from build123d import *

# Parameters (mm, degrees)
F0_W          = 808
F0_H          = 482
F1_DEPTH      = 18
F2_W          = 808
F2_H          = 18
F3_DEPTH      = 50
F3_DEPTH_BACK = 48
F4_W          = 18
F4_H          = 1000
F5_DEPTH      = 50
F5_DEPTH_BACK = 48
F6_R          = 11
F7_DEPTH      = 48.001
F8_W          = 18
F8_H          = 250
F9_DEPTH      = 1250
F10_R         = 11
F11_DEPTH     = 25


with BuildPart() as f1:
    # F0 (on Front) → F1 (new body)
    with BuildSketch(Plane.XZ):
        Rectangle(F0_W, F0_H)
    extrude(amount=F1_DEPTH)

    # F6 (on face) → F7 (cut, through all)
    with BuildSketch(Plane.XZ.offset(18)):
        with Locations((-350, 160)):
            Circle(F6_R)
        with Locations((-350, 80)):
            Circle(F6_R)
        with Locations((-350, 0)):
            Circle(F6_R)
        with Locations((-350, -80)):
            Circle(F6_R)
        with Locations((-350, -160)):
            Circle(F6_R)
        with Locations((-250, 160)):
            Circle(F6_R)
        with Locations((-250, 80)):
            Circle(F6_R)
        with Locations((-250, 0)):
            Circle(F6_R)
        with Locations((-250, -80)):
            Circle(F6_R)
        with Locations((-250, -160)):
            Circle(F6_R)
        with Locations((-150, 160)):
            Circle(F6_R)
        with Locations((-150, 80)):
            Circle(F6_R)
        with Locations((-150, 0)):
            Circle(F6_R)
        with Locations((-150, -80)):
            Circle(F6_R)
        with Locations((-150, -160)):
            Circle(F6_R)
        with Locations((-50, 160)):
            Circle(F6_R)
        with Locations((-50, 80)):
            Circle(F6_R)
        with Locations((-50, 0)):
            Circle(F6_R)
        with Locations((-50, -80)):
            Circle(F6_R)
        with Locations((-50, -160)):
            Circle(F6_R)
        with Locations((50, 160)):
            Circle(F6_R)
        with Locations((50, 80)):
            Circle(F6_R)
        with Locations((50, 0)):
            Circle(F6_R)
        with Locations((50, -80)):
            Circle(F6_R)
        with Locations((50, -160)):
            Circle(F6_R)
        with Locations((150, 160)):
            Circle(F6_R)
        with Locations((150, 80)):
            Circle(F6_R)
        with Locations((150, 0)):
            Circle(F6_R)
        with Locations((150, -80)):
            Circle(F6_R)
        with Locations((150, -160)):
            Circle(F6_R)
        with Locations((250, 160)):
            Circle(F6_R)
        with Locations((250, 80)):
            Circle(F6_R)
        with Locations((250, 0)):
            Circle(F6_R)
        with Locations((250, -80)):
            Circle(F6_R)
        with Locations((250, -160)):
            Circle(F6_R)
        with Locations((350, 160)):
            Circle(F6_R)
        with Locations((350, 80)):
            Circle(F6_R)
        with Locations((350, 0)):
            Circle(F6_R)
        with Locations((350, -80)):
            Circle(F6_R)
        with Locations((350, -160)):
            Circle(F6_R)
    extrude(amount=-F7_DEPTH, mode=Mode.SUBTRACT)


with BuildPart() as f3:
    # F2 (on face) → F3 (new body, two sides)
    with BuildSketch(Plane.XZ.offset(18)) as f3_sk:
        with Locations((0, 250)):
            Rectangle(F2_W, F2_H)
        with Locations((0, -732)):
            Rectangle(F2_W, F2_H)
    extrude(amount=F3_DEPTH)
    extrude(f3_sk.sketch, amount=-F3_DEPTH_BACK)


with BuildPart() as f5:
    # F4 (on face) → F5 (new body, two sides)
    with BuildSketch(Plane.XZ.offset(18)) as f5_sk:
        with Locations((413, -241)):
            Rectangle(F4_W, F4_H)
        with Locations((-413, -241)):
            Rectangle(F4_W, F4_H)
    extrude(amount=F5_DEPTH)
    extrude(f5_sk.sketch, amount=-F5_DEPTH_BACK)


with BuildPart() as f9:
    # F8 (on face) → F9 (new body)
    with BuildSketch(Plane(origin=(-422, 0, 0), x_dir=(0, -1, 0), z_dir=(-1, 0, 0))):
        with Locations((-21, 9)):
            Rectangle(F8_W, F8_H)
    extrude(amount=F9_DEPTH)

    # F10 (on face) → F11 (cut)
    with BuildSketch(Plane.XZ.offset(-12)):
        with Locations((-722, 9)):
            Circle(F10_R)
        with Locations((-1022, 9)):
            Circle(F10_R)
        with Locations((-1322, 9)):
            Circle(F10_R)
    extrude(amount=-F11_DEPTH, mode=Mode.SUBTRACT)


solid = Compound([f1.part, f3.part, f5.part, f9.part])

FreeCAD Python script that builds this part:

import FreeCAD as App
import Part
import Sketcher

V = App.Vector

doc = App.newDocument("Part")
params = doc.addObject("Spreadsheet::Sheet", "Params")
for row, (alias, value) in enumerate([
    ("sketch1_width", "808 mm"),
    ("sketch1_height", "482 mm"),
    ("pad1_length", "18 mm"),
    ("sketch2_diameter", "22 mm"),
    ("sketch3_width", "808 mm"),
    ("sketch3_height", "18 mm"),
    ("pad2_length", "50 mm"),
    ("pad2_length2", "48 mm"),
    ("sketch4_width", "18 mm"),
    ("sketch4_height", "1000 mm"),
    ("pad3_length", "50 mm"),
    ("pad3_length2", "48 mm"),
    ("sketch5_width", "18 mm"),
    ("sketch5_height", "250 mm"),
    ("pad4_length", "1250 mm"),
    ("sketch6_diameter", "22 mm"),
    ("pocket2_length", "25 mm"),
], start=1):
    params.set(f"A{row}", alias)
    params.set(f"B{row}", "=" + value)
    params.setAlias(f"B{row}", alias)

body = doc.addObject("PartDesign::Body", "Body")

sketch1 = body.newObject("Sketcher::SketchObject", "Sketch")
sketch1.AttachmentSupport = (doc.getObject("XZ_Plane"), [""])
sketch1.MapMode = "FlatFace"
sketch1.addGeometry([
    Part.LineSegment(V(-404, 241, 0), V(-404, -241, 0)),
    Part.LineSegment(V(-404, -241, 0), V(404, -241, 0)),
    Part.LineSegment(V(404, -241, 0), V(404, 241, 0)),
    Part.LineSegment(V(404, 241, 0), V(-404, 241, 0)),
], False)
sketch1.addConstraint([
    Sketcher.Constraint("Coincident", 0, 2, 1, 1),
    Sketcher.Constraint("Coincident", 1, 2, 2, 1),
    Sketcher.Constraint("Coincident", 2, 2, 3, 1),
    Sketcher.Constraint("Coincident", 3, 2, 0, 1),
    Sketcher.Constraint("Vertical", 0),
    Sketcher.Constraint("Horizontal", 1),
    Sketcher.Constraint("Vertical", 2),
    Sketcher.Constraint("Horizontal", 3),
    Sketcher.Constraint("Symmetric", 0, 2, 2, 2, -1, 1),
    Sketcher.Constraint("DistanceX", 1, 1, 1, 2, 808.0),
    Sketcher.Constraint("DistanceY", 0, 2, 0, 1, 482.0),
])
sketch1.setExpression("Constraints[9]", "Params.sketch1_width")
sketch1.setExpression("Constraints[10]", "Params.sketch1_height")
pad1 = body.newObject("PartDesign::Pad", "Pad")
pad1.Profile = sketch1
pad1.setExpression("Length", "Params.pad1_length")

sketch2 = body.newObject("Sketcher::SketchObject", "Sketch001")
sketch2.AttachmentSupport = (doc.getObject("XZ_Plane"), [""])
sketch2.MapMode = "FlatFace"
sketch2.AttachmentOffset = App.Placement(V(0, 0, 18), App.Rotation())
sketch2.addGeometry([
    Part.Circle(V(-350, 160, 0), V(0, 0, 1), 11),
    Part.Circle(V(-350, 80, 0), V(0, 0, 1), 11),
    Part.Circle(V(-350, 0, 0), V(0, 0, 1), 11),
    Part.Circle(V(-350, -80, 0), V(0, 0, 1), 11),
    Part.Circle(V(-350, -160, 0), V(0, 0, 1), 11),
    Part.Circle(V(-250, 160, 0), V(0, 0, 1), 11),
    Part.Circle(V(-250, 80, 0), V(0, 0, 1), 11),
    Part.Circle(V(-250, 0, 0), V(0, 0, 1), 11),
    Part.Circle(V(-250, -80, 0), V(0, 0, 1), 11),
    Part.Circle(V(-250, -160, 0), V(0, 0, 1), 11),
    Part.Circle(V(-150, 160, 0), V(0, 0, 1), 11),
    Part.Circle(V(-150, 80, 0), V(0, 0, 1), 11),
    Part.Circle(V(-150, 0, 0), V(0, 0, 1), 11),
    Part.Circle(V(-150, -80, 0), V(0, 0, 1), 11),
    Part.Circle(V(-150, -160, 0), V(0, 0, 1), 11),
    Part.Circle(V(-50, 160, 0), V(0, 0, 1), 11),
    Part.Circle(V(-50, 80, 0), V(0, 0, 1), 11),
    Part.Circle(V(-50, 0, 0), V(0, 0, 1), 11),
    Part.Circle(V(-50, -80, 0), V(0, 0, 1), 11),
    Part.Circle(V(-50, -160, 0), V(0, 0, 1), 11),
    Part.Circle(V(50, 160, 0), V(0, 0, 1), 11),
    Part.Circle(V(50, 80, 0), V(0, 0, 1), 11),
    Part.Circle(V(50, 0, 0), V(0, 0, 1), 11),
    Part.Circle(V(50, -80, 0), V(0, 0, 1), 11),
    Part.Circle(V(50, -160, 0), V(0, 0, 1), 11),
    Part.Circle(V(150, 160, 0), V(0, 0, 1), 11),
    Part.Circle(V(150, 80, 0), V(0, 0, 1), 11),
    Part.Circle(V(150, 0, 0), V(0, 0, 1), 11),
    Part.Circle(V(150, -80, 0), V(0, 0, 1), 11),
    Part.Circle(V(150, -160, 0), V(0, 0, 1), 11),
    Part.Circle(V(250, 160, 0), V(0, 0, 1), 11),
    Part.Circle(V(250, 80, 0), V(0, 0, 1), 11),
    Part.Circle(V(250, 0, 0), V(0, 0, 1), 11),
    Part.Circle(V(250, -80, 0), V(0, 0, 1), 11),
    Part.Circle(V(250, -160, 0), V(0, 0, 1), 11),
    Part.Circle(V(350, 160, 0), V(0, 0, 1), 11),
    Part.Circle(V(350, 80, 0), V(0, 0, 1), 11),
    Part.Circle(V(350, 0, 0), V(0, 0, 1), 11),
    Part.Circle(V(350, -80, 0), V(0, 0, 1), 11),
    Part.Circle(V(350, -160, 0), V(0, 0, 1), 11),
], False)
sketch2.addConstraint([
    Sketcher.Constraint("Equal", 0, 1),
    Sketcher.Constraint("Equal", 1, 2),
    Sketcher.Constraint("Equal", 2, 3),
    Sketcher.Constraint("Equal", 3, 4),
    Sketcher.Constraint("Equal", 4, 5),
    Sketcher.Constraint("Equal", 5, 6),
    Sketcher.Constraint("Equal", 6, 7),
    Sketcher.Constraint("Equal", 7, 8),
    Sketcher.Constraint("Equal", 8, 9),
    Sketcher.Constraint("Equal", 9, 10),
    Sketcher.Constraint("Equal", 10, 11),
    Sketcher.Constraint("Equal", 11, 12),
    Sketcher.Constraint("Equal", 12, 13),
    Sketcher.Constraint("Equal", 13, 14),
    Sketcher.Constraint("Equal", 14, 15),
    Sketcher.Constraint("Equal", 15, 16),
    Sketcher.Constraint("Equal", 16, 17),
    Sketcher.Constraint("Equal", 17, 18),
    Sketcher.Constraint("Equal", 18, 19),
    Sketcher.Constraint("Equal", 19, 20),
    Sketcher.Constraint("Equal", 20, 21),
    Sketcher.Constraint("Equal", 21, 22),
    Sketcher.Constraint("Equal", 22, 23),
    Sketcher.Constraint("Equal", 23, 24),
    Sketcher.Constraint("Equal", 24, 25),
    Sketcher.Constraint("Equal", 25, 26),
    Sketcher.Constraint("Equal", 26, 27),
    Sketcher.Constraint("Equal", 27, 28),
    Sketcher.Constraint("Equal", 28, 29),
    Sketcher.Constraint("Equal", 29, 30),
    Sketcher.Constraint("Equal", 30, 31),
    Sketcher.Constraint("Equal", 31, 32),
    Sketcher.Constraint("Equal", 32, 33),
    Sketcher.Constraint("Equal", 33, 34),
    Sketcher.Constraint("Equal", 34, 35),
    Sketcher.Constraint("Equal", 35, 36),
    Sketcher.Constraint("Equal", 36, 37),
    Sketcher.Constraint("Equal", 37, 38),
    Sketcher.Constraint("Equal", 38, 39),
    Sketcher.Constraint("Symmetric", 19, 3, 20, 3, -1, 1),
    Sketcher.Constraint("Symmetric", 18, 3, 21, 3, -1, 1),
    Sketcher.Constraint("Symmetric", 17, 3, 22, 3, -1, 1),
    Sketcher.Constraint("Symmetric", 16, 3, 23, 3, -1, 1),
    Sketcher.Constraint("Symmetric", 15, 3, 24, 3, -1, 1),
    Sketcher.Constraint("Symmetric", 14, 3, 25, 3, -1, 1),
    Sketcher.Constraint("Symmetric", 13, 3, 26, 3, -1, 1),
    Sketcher.Constraint("Symmetric", 12, 3, 27, 3, -1, 1),
    Sketcher.Constraint("Symmetric", 11, 3, 28, 3, -1, 1),
    Sketcher.Constraint("Symmetric", 10, 3, 29, 3, -1, 1),
    Sketcher.Constraint("Symmetric", 9, 3, 30, 3, -1, 1),
    Sketcher.Constraint("Symmetric", 8, 3, 31, 3, -1, 1),
    Sketcher.Constraint("Symmetric", 7, 3, 32, 3, -1, 1),
    Sketcher.Constraint("Symmetric", 6, 3, 33, 3, -1, 1),
    Sketcher.Constraint("Symmetric", 5, 3, 34, 3, -1, 1),
    Sketcher.Constraint("Symmetric", 4, 3, 35, 3, -1, 1),
    Sketcher.Constraint("Symmetric", 3, 3, 36, 3, -1, 1),
    Sketcher.Constraint("Symmetric", 2, 3, 37, 3, -1, 1),
    Sketcher.Constraint("Symmetric", 1, 3, 38, 3, -1, 1),
    Sketcher.Constraint("Symmetric", 0, 3, 39, 3, -1, 1),
    Sketcher.Constraint("Symmetric", 15, 3, 20, 3, -2),
    Sketcher.Constraint("Symmetric", 16, 3, 21, 3, -2),
    Sketcher.Constraint("Symmetric", 10, 3, 25, 3, -2),
    Sketcher.Constraint("Symmetric", 11, 3, 26, 3, -2),
    Sketcher.Constraint("Symmetric", 5, 3, 30, 3, -2),
    Sketcher.Constraint("Symmetric", 6, 3, 31, 3, -2),
    Sketcher.Constraint("Symmetric", 0, 3, 35, 3, -2),
    Sketcher.Constraint("Symmetric", 1, 3, 36, 3, -2),
    Sketcher.Constraint("PointOnObject", 2, 3, -1),
    Sketcher.Constraint("PointOnObject", 7, 3, -1),
    Sketcher.Constraint("PointOnObject", 12, 3, -1),
    Sketcher.Constraint("PointOnObject", 17, 3, -1),
    Sketcher.Constraint("Horizontal", 0, 3, 5, 3),
    Sketcher.Constraint("Horizontal", 1, 3, 6, 3),
    Sketcher.Constraint("Horizontal", 5, 3, 10, 3),
    Sketcher.Constraint("Horizontal", 6, 3, 11, 3),
    Sketcher.Constraint("Horizontal", 10, 3, 15, 3),
    Sketcher.Constraint("Horizontal", 11, 3, 16, 3),
    Sketcher.Constraint("Vertical", 0, 3, 1, 3),
    Sketcher.Constraint("Vertical", 1, 3, 2, 3),
    Sketcher.Constraint("Vertical", 5, 3, 6, 3),
    Sketcher.Constraint("Vertical", 6, 3, 7, 3),
    Sketcher.Constraint("Vertical", 10, 3, 11, 3),
    Sketcher.Constraint("Vertical", 11, 3, 12, 3),
    Sketcher.Constraint("Vertical", 15, 3, 16, 3),
    Sketcher.Constraint("Vertical", 16, 3, 17, 3),
    Sketcher.Constraint("Diameter", 0, 22.0),
    Sketcher.Constraint("DistanceX", 0, 3, -1, 1, 350.0),
    Sketcher.Constraint("DistanceY", -1, 1, 0, 3, 160.0),
    Sketcher.Constraint("DistanceY", -1, 1, 1, 3, 80.0),
    Sketcher.Constraint("DistanceX", 5, 3, -1, 1, 250.0),
    Sketcher.Constraint("DistanceX", 10, 3, -1, 1, 150.0),
    Sketcher.Constraint("DistanceX", 15, 3, -1, 1, 50.0),
])
sketch2.setExpression("Constraints[85]", "Params.sketch2_diameter")
pocket1 = body.newObject("PartDesign::Pocket", "Pocket")
pocket1.Profile = sketch2
pocket1.Type = "ThroughAll"
body2 = doc.addObject("PartDesign::Body", "Body001")
body2.AllowCompound = True

sketch3 = body2.newObject("Sketcher::SketchObject", "Sketch002")
sketch3.AttachmentSupport = (doc.getObject("XZ_Plane001"), [""])
sketch3.MapMode = "FlatFace"
sketch3.AttachmentOffset = App.Placement(V(0, 0, 18), App.Rotation())
sketch3.addGeometry([
    Part.LineSegment(V(-404, 259, 0), V(-404, 241, 0)),
    Part.LineSegment(V(-404, 241, 0), V(404, 241, 0)),
    Part.LineSegment(V(404, 241, 0), V(404, 259, 0)),
    Part.LineSegment(V(404, 259, 0), V(-404, 259, 0)),
    Part.LineSegment(V(-404, -723, 0), V(-404, -741, 0)),
    Part.LineSegment(V(-404, -741, 0), V(404, -741, 0)),
    Part.LineSegment(V(404, -741, 0), V(404, -723, 0)),
    Part.LineSegment(V(404, -723, 0), V(-404, -723, 0)),
], False)
sketch3.addConstraint([
    Sketcher.Constraint("Coincident", 0, 2, 1, 1),
    Sketcher.Constraint("Coincident", 1, 2, 2, 1),
    Sketcher.Constraint("Coincident", 2, 2, 3, 1),
    Sketcher.Constraint("Coincident", 3, 2, 0, 1),
    Sketcher.Constraint("Coincident", 4, 2, 5, 1),
    Sketcher.Constraint("Coincident", 5, 2, 6, 1),
    Sketcher.Constraint("Coincident", 6, 2, 7, 1),
    Sketcher.Constraint("Coincident", 7, 2, 4, 1),
    Sketcher.Constraint("Vertical", 0),
    Sketcher.Constraint("Horizontal", 1),
    Sketcher.Constraint("Vertical", 2),
    Sketcher.Constraint("Horizontal", 3),
    Sketcher.Constraint("Vertical", 4),
    Sketcher.Constraint("Horizontal", 5),
    Sketcher.Constraint("Vertical", 6),
    Sketcher.Constraint("Horizontal", 7),
    Sketcher.Constraint("Vertical", 3, 2, 4, 2),
    Sketcher.Constraint("Vertical", 2, 2, 5, 2),
    Sketcher.Constraint("Equal", 2, 4),
    Sketcher.Constraint("DistanceX", 1, 1, 1, 2, 808.0),
    Sketcher.Constraint("DistanceY", 0, 2, 0, 1, 18.0),
    Sketcher.Constraint("DistanceX", 0, 2, -1, 1, 404.0),
    Sketcher.Constraint("DistanceY", -1, 1, 0, 2, 241.0),
    Sketcher.Constraint("DistanceY", 4, 2, -1, 1, 741.0),
])
sketch3.setExpression("Constraints[19]", "Params.sketch3_width")
sketch3.setExpression("Constraints[20]", "Params.sketch3_height")
pad2 = body2.newObject("PartDesign::Pad", "Pad001")
pad2.Profile = sketch3
pad2.Type = "TwoLengths"
pad2.setExpression("Length", "Params.pad2_length")
pad2.setExpression("Length2", "Params.pad2_length2")
body3 = doc.addObject("PartDesign::Body", "Body002")
body3.AllowCompound = True

sketch4 = body3.newObject("Sketcher::SketchObject", "Sketch003")
sketch4.AttachmentSupport = (doc.getObject("XZ_Plane002"), [""])
sketch4.MapMode = "FlatFace"
sketch4.AttachmentOffset = App.Placement(V(0, 0, 18), App.Rotation())
sketch4.addGeometry([
    Part.LineSegment(V(404, 259, 0), V(404, -741, 0)),
    Part.LineSegment(V(404, -741, 0), V(422, -741, 0)),
    Part.LineSegment(V(422, -741, 0), V(422, 259, 0)),
    Part.LineSegment(V(422, 259, 0), V(404, 259, 0)),
    Part.LineSegment(V(-422, 259, 0), V(-422, -741, 0)),
    Part.LineSegment(V(-422, -741, 0), V(-404, -741, 0)),
    Part.LineSegment(V(-404, -741, 0), V(-404, 259, 0)),
    Part.LineSegment(V(-404, 259, 0), V(-422, 259, 0)),
], False)
sketch4.addConstraint([
    Sketcher.Constraint("Coincident", 0, 2, 1, 1),
    Sketcher.Constraint("Coincident", 1, 2, 2, 1),
    Sketcher.Constraint("Coincident", 2, 2, 3, 1),
    Sketcher.Constraint("Coincident", 3, 2, 0, 1),
    Sketcher.Constraint("Coincident", 4, 2, 5, 1),
    Sketcher.Constraint("Coincident", 5, 2, 6, 1),
    Sketcher.Constraint("Coincident", 6, 2, 7, 1),
    Sketcher.Constraint("Coincident", 7, 2, 4, 1),
    Sketcher.Constraint("Vertical", 0),
    Sketcher.Constraint("Horizontal", 1),
    Sketcher.Constraint("Vertical", 2),
    Sketcher.Constraint("Horizontal", 3),
    Sketcher.Constraint("Vertical", 4),
    Sketcher.Constraint("Horizontal", 5),
    Sketcher.Constraint("Vertical", 6),
    Sketcher.Constraint("Horizontal", 7),
    Sketcher.Constraint("Symmetric", 1, 2, 4, 2, -2),
    Sketcher.Constraint("Symmetric", 3, 2, 6, 2, -2),
    Sketcher.Constraint("DistanceX", 1, 1, 1, 2, 18.0),
    Sketcher.Constraint("DistanceY", 0, 2, 0, 1, 1000.0),
    Sketcher.Constraint("DistanceX", -1, 1, 0, 2, 404.0),
    Sketcher.Constraint("DistanceY", 0, 2, -1, 1, 741.0),
])
sketch4.setExpression("Constraints[18]", "Params.sketch4_width")
sketch4.setExpression("Constraints[19]", "Params.sketch4_height")
pad3 = body3.newObject("PartDesign::Pad", "Pad002")
pad3.Profile = sketch4
pad3.Type = "TwoLengths"
pad3.setExpression("Length", "Params.pad3_length")
pad3.setExpression("Length2", "Params.pad3_length2")
body4 = doc.addObject("PartDesign::Body", "Body003")

sketch5 = body4.newObject("Sketcher::SketchObject", "Sketch004")
sketch5.AttachmentSupport = (doc.getObject("YZ_Plane003"), [""])
sketch5.MapMode = "FlatFace"
sketch5.AttachmentOffset = App.Placement(V(0, 0, -422), App.Rotation())
sketch5.addGeometry([
    Part.LineSegment(V(30, 134, 0), V(30, -116, 0)),
    Part.LineSegment(V(30, -116, 0), V(12, -116, 0)),
    Part.LineSegment(V(12, -116, 0), V(12, 134, 0)),
    Part.LineSegment(V(12, 134, 0), V(30, 134, 0)),
], False)
sketch5.addConstraint([
    Sketcher.Constraint("Coincident", 0, 2, 1, 1),
    Sketcher.Constraint("Coincident", 1, 2, 2, 1),
    Sketcher.Constraint("Coincident", 2, 2, 3, 1),
    Sketcher.Constraint("Coincident", 3, 2, 0, 1),
    Sketcher.Constraint("Vertical", 0),
    Sketcher.Constraint("Horizontal", 1),
    Sketcher.Constraint("Vertical", 2),
    Sketcher.Constraint("Horizontal", 3),
    Sketcher.Constraint("DistanceX", 1, 2, 1, 1, 18.0),
    Sketcher.Constraint("DistanceY", 0, 2, 0, 1, 250.0),
    Sketcher.Constraint("DistanceX", -1, 1, 0, 2, 30.0),
    Sketcher.Constraint("DistanceY", 0, 2, -1, 1, 116.0),
])
sketch5.setExpression("Constraints[8]", "Params.sketch5_width")
sketch5.setExpression("Constraints[9]", "Params.sketch5_height")
pad4 = body4.newObject("PartDesign::Pad", "Pad003")
pad4.Profile = sketch5
pad4.setExpression("Length", "Params.pad4_length")
pad4.Reversed = True

sketch6 = body4.newObject("Sketcher::SketchObject", "Sketch005")
sketch6.AttachmentSupport = (doc.getObject("XZ_Plane003"), [""])
sketch6.MapMode = "FlatFace"
sketch6.AttachmentOffset = App.Placement(V(0, 0, -12), App.Rotation())
sketch6.addGeometry([
    Part.Circle(V(-722, 9, 0), V(0, 0, 1), 11),
    Part.Circle(V(-1022, 9, 0), V(0, 0, 1), 11),
    Part.Circle(V(-1322, 9, 0), V(0, 0, 1), 11),
], False)
sketch6.addConstraint([
    Sketcher.Constraint("Equal", 0, 1),
    Sketcher.Constraint("Equal", 1, 2),
    Sketcher.Constraint("Horizontal", 0, 3, 1, 3),
    Sketcher.Constraint("Horizontal", 1, 3, 2, 3),
    Sketcher.Constraint("Diameter", 0, 22.0),
    Sketcher.Constraint("DistanceX", 0, 3, -1, 1, 722.0),
    Sketcher.Constraint("DistanceY", -1, 1, 0, 3, 9.0),
    Sketcher.Constraint("DistanceX", 1, 3, -1, 1, 1022.0),
    Sketcher.Constraint("DistanceX", 2, 3, -1, 1, 1322.0),
])
sketch6.setExpression("Constraints[4]", "Params.sketch6_diameter")
pocket2 = body4.newObject("PartDesign::Pocket", "Pocket001")
pocket2.Profile = sketch6
pocket2.setExpression("Length", "Params.pocket2_length")

doc.recompute()
